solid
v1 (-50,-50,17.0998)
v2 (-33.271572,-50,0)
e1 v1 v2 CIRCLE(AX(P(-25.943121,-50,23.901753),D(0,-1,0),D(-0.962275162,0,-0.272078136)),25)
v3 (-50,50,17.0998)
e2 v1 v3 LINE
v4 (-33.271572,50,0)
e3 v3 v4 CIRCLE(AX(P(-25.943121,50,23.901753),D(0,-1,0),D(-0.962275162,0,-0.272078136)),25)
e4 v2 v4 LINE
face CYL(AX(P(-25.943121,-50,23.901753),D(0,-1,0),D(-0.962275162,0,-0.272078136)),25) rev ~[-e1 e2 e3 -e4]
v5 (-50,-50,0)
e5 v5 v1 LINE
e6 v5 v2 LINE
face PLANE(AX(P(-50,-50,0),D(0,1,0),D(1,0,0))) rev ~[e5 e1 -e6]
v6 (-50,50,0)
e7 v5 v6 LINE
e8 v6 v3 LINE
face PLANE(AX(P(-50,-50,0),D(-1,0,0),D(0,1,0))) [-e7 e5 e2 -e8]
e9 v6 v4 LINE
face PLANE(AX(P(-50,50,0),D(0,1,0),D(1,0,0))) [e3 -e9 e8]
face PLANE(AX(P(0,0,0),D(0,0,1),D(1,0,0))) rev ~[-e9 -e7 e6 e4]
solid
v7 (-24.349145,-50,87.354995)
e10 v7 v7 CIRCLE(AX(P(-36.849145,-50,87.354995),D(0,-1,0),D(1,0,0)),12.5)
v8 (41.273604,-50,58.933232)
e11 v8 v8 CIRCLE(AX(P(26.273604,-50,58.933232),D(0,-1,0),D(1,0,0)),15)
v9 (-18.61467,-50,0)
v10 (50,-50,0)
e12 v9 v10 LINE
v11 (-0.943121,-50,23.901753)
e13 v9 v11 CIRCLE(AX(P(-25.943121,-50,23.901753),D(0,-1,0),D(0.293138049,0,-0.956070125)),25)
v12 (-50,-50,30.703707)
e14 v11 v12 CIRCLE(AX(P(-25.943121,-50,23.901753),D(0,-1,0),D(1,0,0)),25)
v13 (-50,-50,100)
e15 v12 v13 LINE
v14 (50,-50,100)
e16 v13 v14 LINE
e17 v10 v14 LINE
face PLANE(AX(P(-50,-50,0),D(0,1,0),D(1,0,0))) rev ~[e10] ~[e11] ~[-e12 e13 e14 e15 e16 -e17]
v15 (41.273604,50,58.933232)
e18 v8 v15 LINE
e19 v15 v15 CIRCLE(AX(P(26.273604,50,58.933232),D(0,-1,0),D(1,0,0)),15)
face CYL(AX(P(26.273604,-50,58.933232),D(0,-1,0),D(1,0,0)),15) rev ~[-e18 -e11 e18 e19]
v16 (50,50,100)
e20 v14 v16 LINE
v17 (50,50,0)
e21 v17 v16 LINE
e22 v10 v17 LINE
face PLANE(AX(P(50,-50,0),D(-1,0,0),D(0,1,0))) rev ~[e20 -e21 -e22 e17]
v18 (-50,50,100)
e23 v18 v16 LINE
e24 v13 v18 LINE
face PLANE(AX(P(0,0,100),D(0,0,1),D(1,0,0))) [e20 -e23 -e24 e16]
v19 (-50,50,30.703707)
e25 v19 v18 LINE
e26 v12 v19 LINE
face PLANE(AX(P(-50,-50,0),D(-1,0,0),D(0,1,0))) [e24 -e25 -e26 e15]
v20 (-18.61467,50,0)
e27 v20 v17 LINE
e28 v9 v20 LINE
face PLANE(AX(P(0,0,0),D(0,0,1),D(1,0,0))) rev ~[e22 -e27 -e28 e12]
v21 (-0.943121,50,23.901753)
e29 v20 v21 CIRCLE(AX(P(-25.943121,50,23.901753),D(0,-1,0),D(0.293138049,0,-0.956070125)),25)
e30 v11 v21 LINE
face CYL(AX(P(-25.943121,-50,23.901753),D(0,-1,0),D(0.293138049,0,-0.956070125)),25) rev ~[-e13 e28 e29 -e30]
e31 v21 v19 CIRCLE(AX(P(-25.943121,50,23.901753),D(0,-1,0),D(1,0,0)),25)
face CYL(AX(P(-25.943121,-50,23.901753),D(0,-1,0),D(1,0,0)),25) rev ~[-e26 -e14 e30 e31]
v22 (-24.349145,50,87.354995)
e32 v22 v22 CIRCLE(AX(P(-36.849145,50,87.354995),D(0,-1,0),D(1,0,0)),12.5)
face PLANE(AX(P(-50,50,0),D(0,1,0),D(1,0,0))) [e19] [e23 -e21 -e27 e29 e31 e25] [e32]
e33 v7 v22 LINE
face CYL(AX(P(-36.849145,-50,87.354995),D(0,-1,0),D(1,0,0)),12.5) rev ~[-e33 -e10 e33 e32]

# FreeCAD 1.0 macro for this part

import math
import FreeCAD as App
import Part
import Sketcher

V = App.Vector
Q = App.Units.Quantity


def add_polygon(sketch, points):
    """Adds a closed chain of lines whose ends are joined by coincident constraints."""
    first, n = sketch.GeometryCount, len(points)
    for a, b in zip(points, points[1:] + points[:1]):
        sketch.addGeometry(Part.LineSegment(App.Vector(*a, 0), App.Vector(*b, 0)), False)
    for i in range(n):
        sketch.addConstraint(Sketcher.Constraint("Coincident", first + i, 2, first + (i + 1) % n, 1))

doc = App.newDocument("Part")
body = doc.addObject("PartDesign::Body", "Body")
body.AllowCompound = True

# Sketch on XY plane
sketch1 = doc.addObject("Sketcher::SketchObject", "Sketch")
body.addObject(sketch1)
sketch1.AttachmentSupport = (doc.XY_Plane, [""])
sketch1.MapMode = "FlatFace"
add_polygon(sketch1, [(-50, 50), (-50, -50), (50, -50), (50, 50)])  # lines 0-3
sketch1.addConstraint([
    Sketcher.Constraint("Vertical", 0),
    Sketcher.Constraint("Horizontal", 1),
    Sketcher.Constraint("Vertical", 2),
    Sketcher.Constraint("Horizontal", 3),
    Sketcher.Constraint("Symmetric", 0, 2, 2, 2, -1, 1),
    Sketcher.Constraint("Equal", 3, 0),
    Sketcher.Constraint("DistanceX", 1, 1, 1, 2, Q("100 mm")),
])
pad1 = doc.addObject("PartDesign::Pad", "Pad")
body.addObject(pad1)
pad1.Profile = sketch1
pad1.Length = 100

# Sketch on XZ plane
sketch2 = doc.addObject("Sketcher::SketchObject", "Sketch001")
body.addObject(sketch2)
sketch2.AttachmentSupport = (doc.XZ_Plane, [""])
sketch2.MapMode = "FlatFace"
sketch2.AttachmentOffset = App.Placement(V(0, 0, 50), App.Rotation())
sketch2.addGeometry([
    Part.Circle(V(-37, 87, 0), V(0, 0, 1), 12),  # 0
    Part.ArcOfCircle(Part.Circle(V(-26, 24, 0), V(0, 0, 1), 25), math.radians(-73), math.radians(0)),  # 1
    Part.ArcOfCircle(Part.Circle(V(-26, 24, 0), V(0, 0, 1), 25), math.radians(0), math.radians(164)),  # 2
    Part.LineSegment(V(-50, 31, 0), V(-50, 17, 0)),  # 3
    Part.ArcOfCircle(Part.Circle(V(-26, 24, 0), V(0, 0, 1), 25), math.radians(-164), math.radians(-107)),  # 4
    Part.LineSegment(V(-33, 0, 0), V(-19, 0, 0)),  # 5
    Part.Circle(V(26, 59, 0), V(0, 0, 1), 15),  # 6
], False)
sketch2.addConstraint([
    Sketcher.Constraint("Tangent", 1, 2, 2, 1),
    Sketcher.Constraint("Coincident", 2, 2, 3, 1),
    Sketcher.Constraint("Coincident", 3, 2, 4, 1),
    Sketcher.Constraint("Coincident", 4, 2, 5, 1),
    Sketcher.Constraint("Coincident", 5, 2, 1, 1),
    Sketcher.Constraint("Vertical", 3),
    Sketcher.Constraint("Horizontal", 5),
    Sketcher.Constraint("Coincident", 4, 3, 1, 3),
    Sketcher.Constraint("Equal", 1, 2),
    Sketcher.Constraint("Equal", 2, 4),
    Sketcher.Constraint("PointOnObject", 4, 2, -1),
    Sketcher.Constraint("Horizontal", 4, 3, 1, 2),
    Sketcher.Constraint("Diameter", 0, Q("25 mm")),
    Sketcher.Constraint("Diameter", 6, Q("30 mm")),
    Sketcher.Constraint("Radius", 1, Q("25 mm")),
    Sketcher.Constraint("DistanceX", 2, 2, -1, 1, Q("50 mm")),
    Sketcher.Constraint("DistanceY", -1, 1, 3, 2, Q("17.0998 mm")),
    Sketcher.Constraint("DistanceX", 5, 1, 5, 2, Q("14.656902 mm")),
    Sketcher.Constraint("DistanceY", -1, 1, 6, 3, Q("58.933232 mm")),
    Sketcher.Constraint("DistanceX", 0, 3, 6, 3, Q("63.122749 mm")),
    Sketcher.Constraint("DistanceY", 2, 2, 0, 3, Q("56.651289 mm")),
    Sketcher.Constraint("DistanceX", 0, 3, -1, 1, Q("36.849145 mm")),
])
pocket1 = doc.addObject("PartDesign::Pocket", "Pocket")
body.addObject(pocket1)
pocket1.Profile = sketch2
pocket1.Type = "ThroughAll"

doc.recompute()
